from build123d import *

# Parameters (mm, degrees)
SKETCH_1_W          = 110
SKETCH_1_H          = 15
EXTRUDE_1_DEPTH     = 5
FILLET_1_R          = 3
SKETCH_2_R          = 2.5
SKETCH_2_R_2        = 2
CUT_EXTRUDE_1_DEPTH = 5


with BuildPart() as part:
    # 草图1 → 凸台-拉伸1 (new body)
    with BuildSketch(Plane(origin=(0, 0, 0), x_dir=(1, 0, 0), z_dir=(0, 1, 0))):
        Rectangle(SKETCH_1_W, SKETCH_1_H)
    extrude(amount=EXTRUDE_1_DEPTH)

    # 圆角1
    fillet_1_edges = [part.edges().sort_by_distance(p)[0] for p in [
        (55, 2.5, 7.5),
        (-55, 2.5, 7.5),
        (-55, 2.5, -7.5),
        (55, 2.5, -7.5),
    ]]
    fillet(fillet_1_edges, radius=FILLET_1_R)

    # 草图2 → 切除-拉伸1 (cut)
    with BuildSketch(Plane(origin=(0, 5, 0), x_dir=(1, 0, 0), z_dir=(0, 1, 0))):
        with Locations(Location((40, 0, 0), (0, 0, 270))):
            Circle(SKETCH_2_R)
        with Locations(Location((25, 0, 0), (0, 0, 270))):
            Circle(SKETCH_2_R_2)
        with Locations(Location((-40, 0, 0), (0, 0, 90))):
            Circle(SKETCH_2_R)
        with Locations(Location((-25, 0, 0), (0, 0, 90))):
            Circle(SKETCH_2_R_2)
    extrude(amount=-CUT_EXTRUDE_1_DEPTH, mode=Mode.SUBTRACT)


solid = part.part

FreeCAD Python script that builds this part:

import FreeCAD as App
import Part
import Sketcher
from FreeCAD import Vector
Q = App.Units.Quantity


def edges_at(feature, points):
    """Names of the edges that pass closest to the given points."""
    edges = feature.Shape.Edges
    near = lambda p: min(range(len(edges)), key=lambda i: edges[i].distToShape(Part.Vertex(*p))[0])
    return sorted({f"Edge{near(p) + 1}" for p in points})

doc = App.newDocument("Part")
body = doc.addObject("PartDesign::Body", "Body")

sketch1 = doc.addObject("Sketcher::SketchObject", "Sketch")
body.addObject(sketch1)
sketch1.AttachmentSupport = (doc.XZ_Plane, [""])
sketch1.MapMode = "FlatFace"
sketch1.addGeometry([
    Part.LineSegment(Vector(-55, -7.5, 0), Vector(-55, 7.5, 0)),
    Part.LineSegment(Vector(-55, 7.5, 0), Vector(55, 7.5, 0)),
    Part.LineSegment(Vector(55, 7.5, 0), Vector(55, -7.5, 0)),
    Part.LineSegment(Vector(55, -7.5, 0), Vector(-55, -7.5, 0)),
], False)
sketch1.addConstraint([
    Sketcher.Constraint("Coincident", 0, 2, 1, 1),
    Sketcher.Constraint("Coincident", 1, 2, 2, 1),
    Sketcher.Constraint("Coincident", 2, 2, 3, 1),
    Sketcher.Constraint("Coincident", 3, 2, 0, 1),
    Sketcher.Constraint("Vertical", 0),
    Sketcher.Constraint("Horizontal", 1),
    Sketcher.Constraint("Vertical", 2),
    Sketcher.Constraint("Horizontal", 3),
    Sketcher.Constraint("Symmetric", 0, 2, 2, 2, -1, 1),
    Sketcher.Constraint("DistanceX", 1, 1, 1, 2, Q("110 mm")),
    Sketcher.Constraint("DistanceY", 0, 1, 0, 2, Q("15 mm")),
])
pad1 = doc.addObject("PartDesign::Pad", "Pad")
body.addObject(pad1)
pad1.Profile = sketch1
pad1.Length = 5
pad1.Reversed = True
doc.recompute()

fillet = doc.addObject("PartDesign::Fillet", "Fillet")
body.addObject(fillet)
fillet.Base = (pad1, edges_at(pad1, [
    (55, 2.5, 7.5),
    (-55, 2.5, 7.5),
    (-55, 2.5, -7.5),
    (55, 2.5, -7.5),
]))
fillet.Radius = 3

sketch2 = doc.addObject("Sketcher::SketchObject", "Sketch001")
body.addObject(sketch2)
sketch2.AttachmentSupport = (doc.XZ_Plane, [""])
sketch2.MapMode = "FlatFace"
sketch2.AttachmentOffset = App.Placement(Vector(0, 0, -5), App.Rotation())
sketch2.addGeometry([
    Part.Circle(Vector(40, 0, 0), Vector(0, 0, 1), 2.5),
    Part.Circle(Vector(25, 0, 0), Vector(0, 0, 1), 2),
    Part.Circle(Vector(-40, 0, 0), Vector(0, 0, 1), 2.5),
    Part.Circle(Vector(-25, 0, 0), Vector(0, 0, 1), 2),
], False)
sketch2.addConstraint([
    Sketcher.Constraint("Equal", 0, 2),
    Sketcher.Constraint("Equal", 1, 3),
    Sketcher.Constraint("Symmetric", 0, 3, 2, 3, -1, 1),
    Sketcher.Constraint("Symmetric", 1, 3, 3, 3, -1, 1),
    Sketcher.Constraint("PointOnObject", 0, 3, -1),
    Sketcher.Constraint("PointOnObject", 1, 3, -1),
    Sketcher.Constraint("Diameter", 0, Q("5 mm")),
    Sketcher.Constraint("Diameter", 1, Q("4 mm")),
    Sketcher.Constraint("DistanceX", -1, 1, 0, 3, Q("40 mm")),
    Sketcher.Constraint("DistanceX", -1, 1, 1, 3, Q("25 mm")),
])
pocket1 = doc.addObject("PartDesign::Pocket", "Pocket")
body.addObject(pocket1)
pocket1.Profile = sketch2
pocket1.Length = 5
pocket1.Reversed = True

doc.recompute()
